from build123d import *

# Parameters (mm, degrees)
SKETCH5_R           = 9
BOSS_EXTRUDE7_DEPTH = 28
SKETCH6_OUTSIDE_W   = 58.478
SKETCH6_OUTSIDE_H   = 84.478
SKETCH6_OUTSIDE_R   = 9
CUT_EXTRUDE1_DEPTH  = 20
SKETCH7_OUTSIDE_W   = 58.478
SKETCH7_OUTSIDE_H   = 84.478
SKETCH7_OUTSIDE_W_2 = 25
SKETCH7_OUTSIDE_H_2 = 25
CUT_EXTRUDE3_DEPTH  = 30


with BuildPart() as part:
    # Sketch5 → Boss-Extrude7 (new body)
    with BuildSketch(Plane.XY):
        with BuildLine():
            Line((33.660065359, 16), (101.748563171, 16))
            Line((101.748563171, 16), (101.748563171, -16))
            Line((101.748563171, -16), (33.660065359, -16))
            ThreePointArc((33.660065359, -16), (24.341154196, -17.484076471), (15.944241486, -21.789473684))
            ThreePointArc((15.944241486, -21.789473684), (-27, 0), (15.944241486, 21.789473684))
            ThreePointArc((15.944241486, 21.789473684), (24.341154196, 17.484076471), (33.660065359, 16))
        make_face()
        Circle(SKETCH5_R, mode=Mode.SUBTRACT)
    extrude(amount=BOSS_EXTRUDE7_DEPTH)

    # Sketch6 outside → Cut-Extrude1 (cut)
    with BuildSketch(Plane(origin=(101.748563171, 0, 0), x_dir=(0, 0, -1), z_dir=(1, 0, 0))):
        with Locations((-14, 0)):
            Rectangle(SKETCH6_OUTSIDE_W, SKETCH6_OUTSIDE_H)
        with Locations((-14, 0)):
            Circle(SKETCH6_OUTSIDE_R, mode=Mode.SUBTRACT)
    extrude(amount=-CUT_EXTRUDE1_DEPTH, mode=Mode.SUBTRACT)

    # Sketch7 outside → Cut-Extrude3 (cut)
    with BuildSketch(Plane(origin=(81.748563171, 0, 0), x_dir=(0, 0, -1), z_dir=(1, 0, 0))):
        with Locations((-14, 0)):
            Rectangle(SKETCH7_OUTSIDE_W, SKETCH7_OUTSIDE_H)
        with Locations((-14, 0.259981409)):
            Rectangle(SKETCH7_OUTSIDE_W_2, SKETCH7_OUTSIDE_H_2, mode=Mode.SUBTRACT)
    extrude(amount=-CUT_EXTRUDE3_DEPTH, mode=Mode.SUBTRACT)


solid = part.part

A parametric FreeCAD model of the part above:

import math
import FreeCAD as App
import Part
import Sketcher


def add_polygon(sketch, points):
    """Adds a closed chain of lines whose ends are joined by coincident constraints."""
    first, n = sketch.GeometryCount, len(points)
    for a, b in zip(points, points[1:] + points[:1]):
        sketch.addGeometry(Part.LineSegment(App.Vector(*a, 0), App.Vector(*b, 0)), False)
    for i in range(n):
        sketch.addConstraint(Sketcher.Constraint("Coincident", first + i, 2, first + (i + 1) % n, 1))

doc = App.newDocument("Part")
body = doc.addObject("PartDesign::Body", "Body")

# Sketch on XY plane
sketch1 = body.newObject("Sketcher::SketchObject", "Sketch")
sketch1.AttachmentSupport = (doc.getObject("XY_Plane"), [""])
sketch1.MapMode = "FlatFace"
sketch1.addGeometry([
    Part.LineSegment(App.Vector(102, 16, 0), App.Vector(34, 16, 0)),  # 0
    Part.ArcOfCircle(Part.Circle(App.Vector(34, 46, 0), App.Vector(0, 0, 1), 30), math.radians(-126), math.radians(-90)),  # 1
    Part.ArcOfCircle(Part.Circle(App.Vector(0, 0, 0), App.Vector(0, 0, 1), 27), math.radians(54), math.radians(306)),  # 2
    Part.ArcOfCircle(Part.Circle(App.Vector(34, -46, 0), App.Vector(0, 0, 1), 30), math.radians(90), math.radians(126)),  # 3
    Part.LineSegment(App.Vector(34, -16, 0), App.Vector(102, -16, 0)),  # 4
    Part.LineSegment(App.Vector(102, -16, 0), App.Vector(102, 16, 0)),  # 5
    Part.Circle(App.Vector(0, 0, 0), App.Vector(0, 0, 1), 9),  # 6
], False)
sketch1.addConstraint([
    Sketcher.Constraint("Tangent", 0, 2, 1, 2),
    Sketcher.Constraint("Tangent", 1, 1, 2, 1),
    Sketcher.Constraint("Tangent", 2, 2, 3, 2),
    Sketcher.Constraint("Tangent", 3, 1, 4, 1),
    Sketcher.Constraint("Coincident", 4, 2, 5, 1),
    Sketcher.Constraint("Coincident", 5, 2, 0, 1),
    Sketcher.Constraint("Horizontal", 0),
    Sketcher.Constraint("Horizontal", 4),
    Sketcher.Constraint("Vertical", 5),
    Sketcher.Constraint("Coincident", 2, 3, -1, 1),
    Sketcher.Constraint("Coincident", 6, 3, -1, 1),
    Sketcher.Constraint("Equal", 1, 3),
    Sketcher.Constraint("Vertical", 1, 3, 3, 3),
    Sketcher.Constraint("Diameter", 6, 18.0),
    Sketcher.Constraint("Radius", 1, 30.0),
    Sketcher.Constraint("Radius", 2, 27.0),
    Sketcher.Constraint("DistanceY", 5, 1, 5, 2, 32.0),
    Sketcher.Constraint("DistanceX", 0, 2, 0, 1, 68.088498),
])
pad1 = body.newObject("PartDesign::Pad", "Pad")
pad1.Profile = sketch1
pad1.Length = 28

# Sketch on YZ plane
sketch2 = body.newObject("Sketcher::SketchObject", "Sketch001")
sketch2.AttachmentSupport = (doc.getObject("YZ_Plane"), [""])
sketch2.MapMode = "FlatFace"
sketch2.AttachmentOffset = App.Placement(App.Vector(0, 0, 101.748563), App.Rotation())
add_polygon(sketch2, [(42, 43), (-42, 43), (-42, -15), (42, -15)])  # lines 0-3
sketch2.addGeometry(Part.Circle(App.Vector(0, 14, 0), App.Vector(0, 0, 1), 9), False)  # 4
sketch2.addConstraint([
    Sketcher.Constraint("Horizontal", 0),
    Sketcher.Constraint("Vertical", 1),
    Sketcher.Constraint("Horizontal", 2),
    Sketcher.Constraint("Vertical", 3),
    Sketcher.Constraint("PointOnObject", 4, 3, -2),
    Sketcher.Constraint("Diameter", 4, 18.0),
    Sketcher.Constraint("DistanceY", -1, 1, 4, 3, 14.0),
    Sketcher.Constraint("DistanceX", 0, 2, 0, 1, 84.478),
    Sketcher.Constraint("DistanceY", 1, 2, 1, 1, 58.478),
    Sketcher.Constraint("DistanceX", 0, 2, -1, 1, 42.239),
    Sketcher.Constraint("DistanceY", -1, 1, 0, 2, 43.239),
])
pocket1 = body.newObject("PartDesign::Pocket", "Pocket")
pocket1.Profile = sketch2
pocket1.Length = 20

# Sketch on YZ plane
sketch3 = body.newObject("Sketcher::SketchObject", "Sketch002")
sketch3.AttachmentSupport = (doc.getObject("YZ_Plane"), [""])
sketch3.MapMode = "FlatFace"
sketch3.AttachmentOffset = App.Placement(App.Vector(0, 0, 81.748563), App.Rotation())
add_polygon(sketch3, [(42, 43), (-42, 43), (-42, -15), (42, -15)])  # lines 0-3
add_polygon(sketch3, [(-12, 2), (-12, 26), (13, 26), (13, 2)])  # lines 4-7
sketch3.addConstraint([
    Sketcher.Constraint("Horizontal", 0),
    Sketcher.Constraint("Vertical", 1),
    Sketcher.Constraint("Horizontal", 2),
    Sketcher.Constraint("Vertical", 3),
    Sketcher.Constraint("Vertical", 4),
    Sketcher.Constraint("Horizontal", 5),
    Sketcher.Constraint("Vertical", 6),
    Sketcher.Constraint("Horizontal", 7),
    Sketcher.Constraint("Equal", 7, 4),
    Sketcher.Constraint("DistanceX", 5, 1, 5, 2, 25.0),
    Sketcher.Constraint("DistanceY", -1, 1, 4, 2, 26.5),
    Sketcher.Constraint("DistanceX", 0, 2, 0, 1, 84.478),
    Sketcher.Constraint("DistanceY", 1, 2, 1, 1, 58.478),
    Sketcher.Constraint("DistanceX", 0, 2, -1, 1, 42.239),
    Sketcher.Constraint("DistanceY", -1, 1, 0, 2, 43.239),
    Sketcher.Constraint("DistanceX", 4, 2, -1, 1, 12.240019),
])
pocket2 = body.newObject("PartDesign::Pocket", "Pocket001")
pocket2.Profile = sketch3
pocket2.Length = 30

doc.recompute()
